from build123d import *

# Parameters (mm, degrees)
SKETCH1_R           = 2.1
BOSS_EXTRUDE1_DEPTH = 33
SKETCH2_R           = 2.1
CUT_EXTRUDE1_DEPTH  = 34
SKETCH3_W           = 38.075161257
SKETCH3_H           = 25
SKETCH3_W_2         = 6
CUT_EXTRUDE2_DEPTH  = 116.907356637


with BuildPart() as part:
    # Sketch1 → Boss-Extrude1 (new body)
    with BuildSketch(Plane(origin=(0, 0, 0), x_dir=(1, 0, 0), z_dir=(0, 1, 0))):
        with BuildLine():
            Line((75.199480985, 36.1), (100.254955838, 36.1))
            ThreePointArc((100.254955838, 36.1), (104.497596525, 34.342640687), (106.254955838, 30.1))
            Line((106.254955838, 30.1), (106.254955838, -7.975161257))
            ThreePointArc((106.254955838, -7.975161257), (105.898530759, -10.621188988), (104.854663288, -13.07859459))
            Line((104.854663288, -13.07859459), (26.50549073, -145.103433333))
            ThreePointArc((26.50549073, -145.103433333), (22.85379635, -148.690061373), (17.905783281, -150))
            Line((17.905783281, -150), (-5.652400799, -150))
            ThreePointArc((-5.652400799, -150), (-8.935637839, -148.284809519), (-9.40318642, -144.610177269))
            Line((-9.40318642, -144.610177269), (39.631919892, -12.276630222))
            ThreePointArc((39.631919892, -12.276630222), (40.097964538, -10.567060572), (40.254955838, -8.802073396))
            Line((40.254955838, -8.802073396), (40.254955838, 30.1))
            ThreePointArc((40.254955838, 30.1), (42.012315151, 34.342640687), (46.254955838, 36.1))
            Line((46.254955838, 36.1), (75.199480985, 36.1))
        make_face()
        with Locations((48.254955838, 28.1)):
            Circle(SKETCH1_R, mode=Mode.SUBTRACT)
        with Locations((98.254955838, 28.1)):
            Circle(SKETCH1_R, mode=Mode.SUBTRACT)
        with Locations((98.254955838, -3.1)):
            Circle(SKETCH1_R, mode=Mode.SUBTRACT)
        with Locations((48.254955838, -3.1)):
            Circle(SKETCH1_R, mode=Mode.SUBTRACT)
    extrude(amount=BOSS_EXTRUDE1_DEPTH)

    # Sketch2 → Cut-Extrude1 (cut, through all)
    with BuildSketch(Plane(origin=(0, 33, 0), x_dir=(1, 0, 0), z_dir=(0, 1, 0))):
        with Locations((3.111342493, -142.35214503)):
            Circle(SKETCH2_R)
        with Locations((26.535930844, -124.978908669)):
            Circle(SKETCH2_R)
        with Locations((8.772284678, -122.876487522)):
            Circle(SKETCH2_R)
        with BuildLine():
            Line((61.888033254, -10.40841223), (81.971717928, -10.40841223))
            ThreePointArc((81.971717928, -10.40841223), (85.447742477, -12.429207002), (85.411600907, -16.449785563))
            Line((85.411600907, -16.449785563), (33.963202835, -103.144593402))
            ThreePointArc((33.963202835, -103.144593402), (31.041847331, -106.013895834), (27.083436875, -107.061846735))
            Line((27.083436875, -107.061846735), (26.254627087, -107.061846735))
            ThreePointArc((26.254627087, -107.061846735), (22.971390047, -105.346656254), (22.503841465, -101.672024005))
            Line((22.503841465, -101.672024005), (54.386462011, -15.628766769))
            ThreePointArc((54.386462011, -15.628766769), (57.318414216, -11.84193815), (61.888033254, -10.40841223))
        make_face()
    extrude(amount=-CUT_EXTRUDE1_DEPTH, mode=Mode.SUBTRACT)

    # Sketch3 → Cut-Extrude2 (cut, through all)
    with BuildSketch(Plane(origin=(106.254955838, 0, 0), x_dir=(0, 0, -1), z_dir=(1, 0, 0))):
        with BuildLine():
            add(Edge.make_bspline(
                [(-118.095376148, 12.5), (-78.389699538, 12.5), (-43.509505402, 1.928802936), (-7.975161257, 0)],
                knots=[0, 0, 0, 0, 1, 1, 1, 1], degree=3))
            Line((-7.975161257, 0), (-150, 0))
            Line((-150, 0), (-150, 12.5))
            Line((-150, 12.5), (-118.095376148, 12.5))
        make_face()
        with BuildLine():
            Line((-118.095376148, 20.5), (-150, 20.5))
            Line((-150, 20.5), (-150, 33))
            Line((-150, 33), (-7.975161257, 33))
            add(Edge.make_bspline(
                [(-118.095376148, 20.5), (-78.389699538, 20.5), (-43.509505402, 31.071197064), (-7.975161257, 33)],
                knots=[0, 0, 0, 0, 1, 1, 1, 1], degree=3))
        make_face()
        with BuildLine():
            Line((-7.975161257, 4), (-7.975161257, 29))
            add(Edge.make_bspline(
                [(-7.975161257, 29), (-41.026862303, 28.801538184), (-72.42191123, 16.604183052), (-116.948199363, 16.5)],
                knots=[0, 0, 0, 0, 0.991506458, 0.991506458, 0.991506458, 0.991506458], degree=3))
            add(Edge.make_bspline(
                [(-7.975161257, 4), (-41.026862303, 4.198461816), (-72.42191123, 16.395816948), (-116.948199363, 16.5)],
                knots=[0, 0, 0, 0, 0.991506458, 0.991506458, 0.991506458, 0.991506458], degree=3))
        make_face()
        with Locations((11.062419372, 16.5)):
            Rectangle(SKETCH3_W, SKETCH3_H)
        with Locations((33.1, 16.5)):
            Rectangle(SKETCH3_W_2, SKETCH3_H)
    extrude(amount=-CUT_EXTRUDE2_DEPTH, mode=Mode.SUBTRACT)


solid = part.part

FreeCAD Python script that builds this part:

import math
import FreeCAD as App
import Part
import Sketcher
from FreeCAD import Vector
Q = App.Units.Quantity

doc = App.newDocument("Part")
body = doc.addObject("PartDesign::Body", "Body")

# Sketch on XZ plane
sketch1 = body.newObject("Sketcher::SketchObject", "Sketch")
sketch1.AttachmentSupport = (doc.getObject("XZ_Plane"), [""])
sketch1.MapMode = "FlatFace"
sketch1.addGeometry([
    Part.ArcOfCircle(Part.Circle(Vector(100.3, -30.1, 0), Vector(0, 0, 1), 6), math.radians(-90), math.radians(0)),  # 0
    Part.LineSegment(Vector(100.3, -36.1, 0), Vector(46.3, -36.1, 0)),  # 1
    Part.ArcOfCircle(Part.Circle(Vector(46.3, -30.1, 0), Vector(0, 0, 1), 6), math.radians(180), math.radians(270)),  # 2
    Part.LineSegment(Vector(40.3, -30.1, 0), Vector(40.3, 8.8, 0)),  # 3
    Part.ArcOfCircle(Part.Circle(Vector(30.3, 8.8, 0), Vector(0, 0, 1), 10), math.radians(0), math.radians(20)),  # 4
    Part.LineSegment(Vector(39.6, 12.3, 0), Vector(-9.4, 144.6, 0)),  # 5
    Part.ArcOfCircle(Part.Circle(Vector(-5.7, 146, 0), Vector(0, 0, 1), 4), math.radians(90), math.radians(200)),  # 6
    Part.LineSegment(Vector(-5.7, 150, 0), Vector(17.9, 150, 0)),  # 7
    Part.ArcOfCircle(Part.Circle(Vector(17.9, 140, 0), Vector(0, 0, 1), 10), math.radians(31), math.radians(90)),  # 8
    Part.LineSegment(Vector(26.5, 145.1, 0), Vector(104.9, 13.1, 0)),  # 9
    Part.ArcOfCircle(Part.Circle(Vector(96.3, 8, 0), Vector(0, 0, 1), 10), math.radians(0), math.radians(31)),  # 10
    Part.LineSegment(Vector(106.3, 8, 0), Vector(106.3, -30.1, 0)),  # 11
    Part.Circle(Vector(98.3, 3.1, 0), Vector(0, 0, 1), 2.1),  # 12
    Part.Circle(Vector(48.3, 3.1, 0), Vector(0, 0, 1), 2.1),  # 13
    Part.Circle(Vector(98.3, -28.1, 0), Vector(0, 0, 1), 2.1),  # 14
    Part.Circle(Vector(48.3, -28.1, 0), Vector(0, 0, 1), 2.1),  # 15
], False)
sketch1.addConstraint([
    Sketcher.Constraint("Tangent", 0, 1, 1, 1),
    Sketcher.Constraint("Tangent", 1, 2, 2, 2),
    Sketcher.Constraint("Tangent", 2, 1, 3, 1),
    Sketcher.Constraint("Tangent", 3, 2, 4, 1),
    Sketcher.Constraint("Tangent", 4, 2, 5, 1),
    Sketcher.Constraint("Tangent", 5, 2, 6, 2),
    Sketcher.Constraint("Tangent", 6, 1, 7, 1),
    Sketcher.Constraint("Tangent", 7, 2, 8, 2),
    Sketcher.Constraint("Tangent", 8, 1, 9, 1),
    Sketcher.Constraint("Tangent", 9, 2, 10, 2),
    Sketcher.Constraint("Tangent", 10, 1, 11, 1),
    Sketcher.Constraint("Tangent", 11, 2, 0, 2),
    Sketcher.Constraint("Horizontal", 1),
    Sketcher.Constraint("Vertical", 3),
    Sketcher.Constraint("Horizontal", 7),
    Sketcher.Constraint("Vertical", 11),
    Sketcher.Constraint("Equal", 0, 2),
    Sketcher.Constraint("Equal", 4, 8),
    Sketcher.Constraint("Equal", 8, 10),
    Sketcher.Constraint("Equal", 12, 13),
    Sketcher.Constraint("Equal", 13, 14),
    Sketcher.Constraint("Equal", 14, 15),
    Sketcher.Constraint("Horizontal", 12, 3, 13, 3),
    Sketcher.Constraint("Horizontal", 14, 3, 15, 3),
    Sketcher.Constraint("Vertical", 12, 3, 14, 3),
    Sketcher.Constraint("Vertical", 13, 3, 15, 3),
    Sketcher.Constraint("Radius", 0, Q("6 mm")),
    Sketcher.Constraint("Radius", 4, Q("10 mm")),
    Sketcher.Constraint("Radius", 6, Q("4 mm")),
    Sketcher.Constraint("Diameter", 12, Q("4.2 mm")),
    Sketcher.Constraint("DistanceX", 1, 2, 1, 1, Q("54 mm")),
    Sketcher.Constraint("DistanceY", -1, 1, 6, 3, Q("146 mm")),
    Sketcher.Constraint("DistanceX", 10, 3, 12, 3, Q("2 mm")),
    Sketcher.Constraint("DistanceX", 4, 3, 13, 3, Q("18 mm")),
    Sketcher.Constraint("DistanceY", 0, 3, 14, 3, Q("2 mm")),
    Sketcher.Constraint("DistanceY", 0, 3, -1, 1, Q("30.1 mm")),
    Sketcher.Constraint("DistanceY", -1, 1, 12, 3, Q("3.1 mm")),
    Sketcher.Constraint("DistanceY", 11, 2, 11, 1, Q("38.075161 mm")),
    Sketcher.Constraint("DistanceX", 6, 3, -1, 1, Q("5.652401 mm")),
    Sketcher.Constraint("DistanceX", 7, 1, 7, 2, Q("23.558184 mm")),
    Sketcher.Constraint("DistanceY", 3, 1, 3, 2, Q("38.902073 mm")),
    Sketcher.Constraint("DistanceX", -1, 1, 4, 2, Q("39.63192 mm")),
])
pad1 = body.newObject("PartDesign::Pad", "Pad")
pad1.Profile = sketch1
pad1.Length = 33
pad1.Reversed = True

# Sketch on XZ plane
sketch2 = body.newObject("Sketcher::SketchObject", "Sketch001")
sketch2.AttachmentSupport = (doc.getObject("XZ_Plane"), [""])
sketch2.MapMode = "FlatFace"
sketch2.AttachmentOffset = App.Placement(Vector(0, 0, -33), App.Rotation())
sketch2.addGeometry([
    Part.Circle(Vector(3.1, 142.4, 0), Vector(0, 0, 1), 2.1),  # 0
    Part.Circle(Vector(26.5, 125, 0), Vector(0, 0, 1), 2.1),  # 1
    Part.Circle(Vector(8.8, 122.9, 0), Vector(0, 0, 1), 2.1),  # 2
    Part.LineSegment(Vector(82, 10.4, 0), Vector(61.9, 10.4, 0)),  # 3
    Part.ArcOfCircle(Part.Circle(Vector(61.9, 18.4, 0), Vector(0, 0, 1), 8), math.radians(-160), math.radians(-90)),  # 4
    Part.LineSegment(Vector(54.4, 15.6, 0), Vector(22.5, 101.7, 0)),  # 5
    Part.ArcOfCircle(Part.Circle(Vector(26.3, 103.1, 0), Vector(0, 0, 1), 4), math.radians(90), math.radians(200)),  # 6
    Part.LineSegment(Vector(26.3, 107.1, 0), Vector(27.1, 107.1, 0)),  # 7
    Part.ArcOfCircle(Part.Circle(Vector(27.1, 99.1, 0), Vector(0, 0, 1), 8), math.radians(31), math.radians(90)),  # 8
    Part.LineSegment(Vector(34, 103.1, 0), Vector(85.4, 16.4, 0)),  # 9
    Part.ArcOfCircle(Part.Circle(Vector(82, 14.4, 0), Vector(0, 0, 1), 4), math.radians(-90), math.radians(31)),  # 10
], False)
sketch2.addConstraint([
    Sketcher.Constraint("Tangent", 3, 2, 4, 2),
    Sketcher.Constraint("Tangent", 4, 1, 5, 1),
    Sketcher.Constraint("Tangent", 5, 2, 6, 2),
    Sketcher.Constraint("Tangent", 6, 1, 7, 1),
    Sketcher.Constraint("Tangent", 7, 2, 8, 2),
    Sketcher.Constraint("Tangent", 8, 1, 9, 1),
    Sketcher.Constraint("Tangent", 9, 2, 10, 2),
    Sketcher.Constraint("Tangent", 10, 1, 3, 1),
    Sketcher.Constraint("Horizontal", 3),
    Sketcher.Constraint("Horizontal", 7),
    Sketcher.Constraint("Equal", 0, 1),
    Sketcher.Constraint("Equal", 1, 2),
    Sketcher.Constraint("Equal", 4, 8),
    Sketcher.Constraint("Equal", 6, 10),
    Sketcher.Constraint("Radius", 4, Q("8 mm")),
    Sketcher.Constraint("Radius", 6, Q("4 mm")),
    Sketcher.Constraint("Diameter", 0, Q("4.2 mm")),
    Sketcher.Constraint("DistanceX", 7, 1, 7, 2, Q("0.82881 mm")),
    Sketcher.Constraint("DistanceX", -1, 1, 9, 2, Q("85.411601 mm")),
    Sketcher.Constraint("DistanceY", 6, 3, 0, 3, Q("39.290298 mm")),
    Sketcher.Constraint("DistanceX", 0, 3, 5, 2, Q("19.392499 mm")),
    Sketcher.Constraint("DistanceX", 8, 1, 9, 2, Q("51.448398 mm")),
    Sketcher.Constraint("Distance", 5, Q("91.760251 mm")),
    Sketcher.Constraint("DistanceX", 3, 2, 3, 1, Q("20.083685 mm")),
    Sketcher.Constraint("DistanceX", -1, 1, 1, 3, Q("26.535931 mm")),
    Sketcher.Constraint("DistanceY", -1, 1, 1, 3, Q("124.978909 mm")),
    Sketcher.Constraint("DistanceY", 2, 3, 1, 3, Q("2.102421 mm")),
    Sketcher.Constraint("DistanceX", 2, 3, 4, 3, Q("53.115749 mm")),
    Sketcher.Constraint("DistanceY", 6, 3, 1, 3, Q("21.917062 mm")),
])
pocket1 = body.newObject("PartDesign::Pocket", "Pocket")
pocket1.Profile = sketch2
pocket1.Type = "ThroughAll"
pocket1.Reversed = True

# Sketch on YZ plane
sketch3 = body.newObject("Sketcher::SketchObject", "Sketch002")
sketch3.AttachmentSupport = (doc.getObject("YZ_Plane"), [""])
sketch3.MapMode = "FlatFace"
sketch3.AttachmentOffset = App.Placement(Vector(0, 0, 106.254956), App.Rotation())
sketch3.addGeometry([
    Part.BSplineCurve([Vector(12.5, 118.095376, 0), Vector(12.5, 78.3897, 0), Vector(1.928803, 43.509505, 0), Vector(0, 7.975161, 0)], [4, 4], [0, 1], False, 3, [1, 1, 1, 1], False),  # 0
    Part.LineSegment(Vector(12.5, 118.095376, 0), Vector(12.5, 150, 0)),  # 1
    Part.LineSegment(Vector(12.5, 150, 0), Vector(0, 150, 0)),  # 2
    Part.LineSegment(Vector(0, 150, 0), Vector(0, 7.975161, 0)),  # 3
    Part.LineSegment(Vector(20.5, 150, 0), Vector(20.5, 118.095376, 0)),  # 4
    Part.BSplineCurve([Vector(20.5, 118.095376, 0), Vector(20.5, 78.3897, 0), Vector(31.071197, 43.509505, 0), Vector(33, 7.975161, 0)], [4, 4], [0, 1], False, 3, [1, 1, 1, 1], False),  # 5
    Part.LineSegment(Vector(33, 7.975161, 0), Vector(33, 150, 0)),  # 6
    Part.LineSegment(Vector(33, 150, 0), Vector(20.5, 150, 0)),  # 7
    Part.BSplineCurve([Vector(29, 7.975161, 0), Vector(28.801538, 41.026862, 0), Vector(16.604183, 72.421911, 0), Vector(16.5, 116.948199, 0)], [4, 4], [0, 0.991506458], False, 3, [1, 1, 1, 1], False),  # 8
    Part.BSplineCurve([Vector(4, 7.975161, 0), Vector(4.198462, 41.026862, 0), Vector(16.395817, 72.421911, 0), Vector(16.5, 116.948199, 0)], [4, 4], [0, 0.991506458], False, 3, [1, 1, 1, 1], False),  # 9
    Part.LineSegment(Vector(4, 7.975161, 0), Vector(4, -36.1, 0)),  # 10
    Part.LineSegment(Vector(4, -36.1, 0), Vector(29, -36.1, 0)),  # 11
    Part.LineSegment(Vector(29, -36.1, 0), Vector(29, 7.975161, 0)),  # 12
], False)
sketch3.addConstraint([
    Sketcher.Constraint("Block", 0),
    Sketcher.Constraint("Block", 5),
    Sketcher.Constraint("Block", 8),
    Sketcher.Constraint("Block", 9),
    Sketcher.Constraint("Coincident", 0, 1, 1, 1),
    Sketcher.Constraint("Coincident", 1, 2, 2, 1),
    Sketcher.Constraint("Coincident", 2, 2, 3, 1),
    Sketcher.Constraint("Coincident", 3, 2, 0, 2),
    Sketcher.Constraint("Coincident", 4, 2, 5, 1),
    Sketcher.Constraint("Coincident", 5, 2, 6, 1),
    Sketcher.Constraint("Coincident", 6, 2, 7, 1),
    Sketcher.Constraint("Coincident", 7, 2, 4, 1),
    Sketcher.Constraint("Coincident", 9, 1, 10, 1),
    Sketcher.Constraint("Coincident", 10, 2, 11, 1),
    Sketcher.Constraint("Coincident", 11, 2, 12, 1),
    Sketcher.Constraint("Coincident", 12, 2, 8, 1),
    Sketcher.Constraint("Vertical", 1),
    Sketcher.Constraint("Horizontal", 2),
    Sketcher.Constraint("Vertical", 3),
    Sketcher.Constraint("Vertical", 4),
    Sketcher.Constraint("Vertical", 6),
    Sketcher.Constraint("Horizontal", 7),
    Sketcher.Constraint("Vertical", 10),
    Sketcher.Constraint("Horizontal", 11),
    Sketcher.Constraint("Vertical", 12),
    Sketcher.Constraint("Horizontal", 2, 2, 6, 2),
    Sketcher.Constraint("DistanceY", -1, 1, 1, 2, Q("150 mm")),
    Sketcher.Constraint("DistanceY", 10, 2, -1, 1, Q("36.1 mm")),
])
pocket2 = body.newObject("PartDesign::Pocket", "Pocket001")
pocket2.Profile = sketch3
pocket2.Type = "ThroughAll"

doc.recompute()
